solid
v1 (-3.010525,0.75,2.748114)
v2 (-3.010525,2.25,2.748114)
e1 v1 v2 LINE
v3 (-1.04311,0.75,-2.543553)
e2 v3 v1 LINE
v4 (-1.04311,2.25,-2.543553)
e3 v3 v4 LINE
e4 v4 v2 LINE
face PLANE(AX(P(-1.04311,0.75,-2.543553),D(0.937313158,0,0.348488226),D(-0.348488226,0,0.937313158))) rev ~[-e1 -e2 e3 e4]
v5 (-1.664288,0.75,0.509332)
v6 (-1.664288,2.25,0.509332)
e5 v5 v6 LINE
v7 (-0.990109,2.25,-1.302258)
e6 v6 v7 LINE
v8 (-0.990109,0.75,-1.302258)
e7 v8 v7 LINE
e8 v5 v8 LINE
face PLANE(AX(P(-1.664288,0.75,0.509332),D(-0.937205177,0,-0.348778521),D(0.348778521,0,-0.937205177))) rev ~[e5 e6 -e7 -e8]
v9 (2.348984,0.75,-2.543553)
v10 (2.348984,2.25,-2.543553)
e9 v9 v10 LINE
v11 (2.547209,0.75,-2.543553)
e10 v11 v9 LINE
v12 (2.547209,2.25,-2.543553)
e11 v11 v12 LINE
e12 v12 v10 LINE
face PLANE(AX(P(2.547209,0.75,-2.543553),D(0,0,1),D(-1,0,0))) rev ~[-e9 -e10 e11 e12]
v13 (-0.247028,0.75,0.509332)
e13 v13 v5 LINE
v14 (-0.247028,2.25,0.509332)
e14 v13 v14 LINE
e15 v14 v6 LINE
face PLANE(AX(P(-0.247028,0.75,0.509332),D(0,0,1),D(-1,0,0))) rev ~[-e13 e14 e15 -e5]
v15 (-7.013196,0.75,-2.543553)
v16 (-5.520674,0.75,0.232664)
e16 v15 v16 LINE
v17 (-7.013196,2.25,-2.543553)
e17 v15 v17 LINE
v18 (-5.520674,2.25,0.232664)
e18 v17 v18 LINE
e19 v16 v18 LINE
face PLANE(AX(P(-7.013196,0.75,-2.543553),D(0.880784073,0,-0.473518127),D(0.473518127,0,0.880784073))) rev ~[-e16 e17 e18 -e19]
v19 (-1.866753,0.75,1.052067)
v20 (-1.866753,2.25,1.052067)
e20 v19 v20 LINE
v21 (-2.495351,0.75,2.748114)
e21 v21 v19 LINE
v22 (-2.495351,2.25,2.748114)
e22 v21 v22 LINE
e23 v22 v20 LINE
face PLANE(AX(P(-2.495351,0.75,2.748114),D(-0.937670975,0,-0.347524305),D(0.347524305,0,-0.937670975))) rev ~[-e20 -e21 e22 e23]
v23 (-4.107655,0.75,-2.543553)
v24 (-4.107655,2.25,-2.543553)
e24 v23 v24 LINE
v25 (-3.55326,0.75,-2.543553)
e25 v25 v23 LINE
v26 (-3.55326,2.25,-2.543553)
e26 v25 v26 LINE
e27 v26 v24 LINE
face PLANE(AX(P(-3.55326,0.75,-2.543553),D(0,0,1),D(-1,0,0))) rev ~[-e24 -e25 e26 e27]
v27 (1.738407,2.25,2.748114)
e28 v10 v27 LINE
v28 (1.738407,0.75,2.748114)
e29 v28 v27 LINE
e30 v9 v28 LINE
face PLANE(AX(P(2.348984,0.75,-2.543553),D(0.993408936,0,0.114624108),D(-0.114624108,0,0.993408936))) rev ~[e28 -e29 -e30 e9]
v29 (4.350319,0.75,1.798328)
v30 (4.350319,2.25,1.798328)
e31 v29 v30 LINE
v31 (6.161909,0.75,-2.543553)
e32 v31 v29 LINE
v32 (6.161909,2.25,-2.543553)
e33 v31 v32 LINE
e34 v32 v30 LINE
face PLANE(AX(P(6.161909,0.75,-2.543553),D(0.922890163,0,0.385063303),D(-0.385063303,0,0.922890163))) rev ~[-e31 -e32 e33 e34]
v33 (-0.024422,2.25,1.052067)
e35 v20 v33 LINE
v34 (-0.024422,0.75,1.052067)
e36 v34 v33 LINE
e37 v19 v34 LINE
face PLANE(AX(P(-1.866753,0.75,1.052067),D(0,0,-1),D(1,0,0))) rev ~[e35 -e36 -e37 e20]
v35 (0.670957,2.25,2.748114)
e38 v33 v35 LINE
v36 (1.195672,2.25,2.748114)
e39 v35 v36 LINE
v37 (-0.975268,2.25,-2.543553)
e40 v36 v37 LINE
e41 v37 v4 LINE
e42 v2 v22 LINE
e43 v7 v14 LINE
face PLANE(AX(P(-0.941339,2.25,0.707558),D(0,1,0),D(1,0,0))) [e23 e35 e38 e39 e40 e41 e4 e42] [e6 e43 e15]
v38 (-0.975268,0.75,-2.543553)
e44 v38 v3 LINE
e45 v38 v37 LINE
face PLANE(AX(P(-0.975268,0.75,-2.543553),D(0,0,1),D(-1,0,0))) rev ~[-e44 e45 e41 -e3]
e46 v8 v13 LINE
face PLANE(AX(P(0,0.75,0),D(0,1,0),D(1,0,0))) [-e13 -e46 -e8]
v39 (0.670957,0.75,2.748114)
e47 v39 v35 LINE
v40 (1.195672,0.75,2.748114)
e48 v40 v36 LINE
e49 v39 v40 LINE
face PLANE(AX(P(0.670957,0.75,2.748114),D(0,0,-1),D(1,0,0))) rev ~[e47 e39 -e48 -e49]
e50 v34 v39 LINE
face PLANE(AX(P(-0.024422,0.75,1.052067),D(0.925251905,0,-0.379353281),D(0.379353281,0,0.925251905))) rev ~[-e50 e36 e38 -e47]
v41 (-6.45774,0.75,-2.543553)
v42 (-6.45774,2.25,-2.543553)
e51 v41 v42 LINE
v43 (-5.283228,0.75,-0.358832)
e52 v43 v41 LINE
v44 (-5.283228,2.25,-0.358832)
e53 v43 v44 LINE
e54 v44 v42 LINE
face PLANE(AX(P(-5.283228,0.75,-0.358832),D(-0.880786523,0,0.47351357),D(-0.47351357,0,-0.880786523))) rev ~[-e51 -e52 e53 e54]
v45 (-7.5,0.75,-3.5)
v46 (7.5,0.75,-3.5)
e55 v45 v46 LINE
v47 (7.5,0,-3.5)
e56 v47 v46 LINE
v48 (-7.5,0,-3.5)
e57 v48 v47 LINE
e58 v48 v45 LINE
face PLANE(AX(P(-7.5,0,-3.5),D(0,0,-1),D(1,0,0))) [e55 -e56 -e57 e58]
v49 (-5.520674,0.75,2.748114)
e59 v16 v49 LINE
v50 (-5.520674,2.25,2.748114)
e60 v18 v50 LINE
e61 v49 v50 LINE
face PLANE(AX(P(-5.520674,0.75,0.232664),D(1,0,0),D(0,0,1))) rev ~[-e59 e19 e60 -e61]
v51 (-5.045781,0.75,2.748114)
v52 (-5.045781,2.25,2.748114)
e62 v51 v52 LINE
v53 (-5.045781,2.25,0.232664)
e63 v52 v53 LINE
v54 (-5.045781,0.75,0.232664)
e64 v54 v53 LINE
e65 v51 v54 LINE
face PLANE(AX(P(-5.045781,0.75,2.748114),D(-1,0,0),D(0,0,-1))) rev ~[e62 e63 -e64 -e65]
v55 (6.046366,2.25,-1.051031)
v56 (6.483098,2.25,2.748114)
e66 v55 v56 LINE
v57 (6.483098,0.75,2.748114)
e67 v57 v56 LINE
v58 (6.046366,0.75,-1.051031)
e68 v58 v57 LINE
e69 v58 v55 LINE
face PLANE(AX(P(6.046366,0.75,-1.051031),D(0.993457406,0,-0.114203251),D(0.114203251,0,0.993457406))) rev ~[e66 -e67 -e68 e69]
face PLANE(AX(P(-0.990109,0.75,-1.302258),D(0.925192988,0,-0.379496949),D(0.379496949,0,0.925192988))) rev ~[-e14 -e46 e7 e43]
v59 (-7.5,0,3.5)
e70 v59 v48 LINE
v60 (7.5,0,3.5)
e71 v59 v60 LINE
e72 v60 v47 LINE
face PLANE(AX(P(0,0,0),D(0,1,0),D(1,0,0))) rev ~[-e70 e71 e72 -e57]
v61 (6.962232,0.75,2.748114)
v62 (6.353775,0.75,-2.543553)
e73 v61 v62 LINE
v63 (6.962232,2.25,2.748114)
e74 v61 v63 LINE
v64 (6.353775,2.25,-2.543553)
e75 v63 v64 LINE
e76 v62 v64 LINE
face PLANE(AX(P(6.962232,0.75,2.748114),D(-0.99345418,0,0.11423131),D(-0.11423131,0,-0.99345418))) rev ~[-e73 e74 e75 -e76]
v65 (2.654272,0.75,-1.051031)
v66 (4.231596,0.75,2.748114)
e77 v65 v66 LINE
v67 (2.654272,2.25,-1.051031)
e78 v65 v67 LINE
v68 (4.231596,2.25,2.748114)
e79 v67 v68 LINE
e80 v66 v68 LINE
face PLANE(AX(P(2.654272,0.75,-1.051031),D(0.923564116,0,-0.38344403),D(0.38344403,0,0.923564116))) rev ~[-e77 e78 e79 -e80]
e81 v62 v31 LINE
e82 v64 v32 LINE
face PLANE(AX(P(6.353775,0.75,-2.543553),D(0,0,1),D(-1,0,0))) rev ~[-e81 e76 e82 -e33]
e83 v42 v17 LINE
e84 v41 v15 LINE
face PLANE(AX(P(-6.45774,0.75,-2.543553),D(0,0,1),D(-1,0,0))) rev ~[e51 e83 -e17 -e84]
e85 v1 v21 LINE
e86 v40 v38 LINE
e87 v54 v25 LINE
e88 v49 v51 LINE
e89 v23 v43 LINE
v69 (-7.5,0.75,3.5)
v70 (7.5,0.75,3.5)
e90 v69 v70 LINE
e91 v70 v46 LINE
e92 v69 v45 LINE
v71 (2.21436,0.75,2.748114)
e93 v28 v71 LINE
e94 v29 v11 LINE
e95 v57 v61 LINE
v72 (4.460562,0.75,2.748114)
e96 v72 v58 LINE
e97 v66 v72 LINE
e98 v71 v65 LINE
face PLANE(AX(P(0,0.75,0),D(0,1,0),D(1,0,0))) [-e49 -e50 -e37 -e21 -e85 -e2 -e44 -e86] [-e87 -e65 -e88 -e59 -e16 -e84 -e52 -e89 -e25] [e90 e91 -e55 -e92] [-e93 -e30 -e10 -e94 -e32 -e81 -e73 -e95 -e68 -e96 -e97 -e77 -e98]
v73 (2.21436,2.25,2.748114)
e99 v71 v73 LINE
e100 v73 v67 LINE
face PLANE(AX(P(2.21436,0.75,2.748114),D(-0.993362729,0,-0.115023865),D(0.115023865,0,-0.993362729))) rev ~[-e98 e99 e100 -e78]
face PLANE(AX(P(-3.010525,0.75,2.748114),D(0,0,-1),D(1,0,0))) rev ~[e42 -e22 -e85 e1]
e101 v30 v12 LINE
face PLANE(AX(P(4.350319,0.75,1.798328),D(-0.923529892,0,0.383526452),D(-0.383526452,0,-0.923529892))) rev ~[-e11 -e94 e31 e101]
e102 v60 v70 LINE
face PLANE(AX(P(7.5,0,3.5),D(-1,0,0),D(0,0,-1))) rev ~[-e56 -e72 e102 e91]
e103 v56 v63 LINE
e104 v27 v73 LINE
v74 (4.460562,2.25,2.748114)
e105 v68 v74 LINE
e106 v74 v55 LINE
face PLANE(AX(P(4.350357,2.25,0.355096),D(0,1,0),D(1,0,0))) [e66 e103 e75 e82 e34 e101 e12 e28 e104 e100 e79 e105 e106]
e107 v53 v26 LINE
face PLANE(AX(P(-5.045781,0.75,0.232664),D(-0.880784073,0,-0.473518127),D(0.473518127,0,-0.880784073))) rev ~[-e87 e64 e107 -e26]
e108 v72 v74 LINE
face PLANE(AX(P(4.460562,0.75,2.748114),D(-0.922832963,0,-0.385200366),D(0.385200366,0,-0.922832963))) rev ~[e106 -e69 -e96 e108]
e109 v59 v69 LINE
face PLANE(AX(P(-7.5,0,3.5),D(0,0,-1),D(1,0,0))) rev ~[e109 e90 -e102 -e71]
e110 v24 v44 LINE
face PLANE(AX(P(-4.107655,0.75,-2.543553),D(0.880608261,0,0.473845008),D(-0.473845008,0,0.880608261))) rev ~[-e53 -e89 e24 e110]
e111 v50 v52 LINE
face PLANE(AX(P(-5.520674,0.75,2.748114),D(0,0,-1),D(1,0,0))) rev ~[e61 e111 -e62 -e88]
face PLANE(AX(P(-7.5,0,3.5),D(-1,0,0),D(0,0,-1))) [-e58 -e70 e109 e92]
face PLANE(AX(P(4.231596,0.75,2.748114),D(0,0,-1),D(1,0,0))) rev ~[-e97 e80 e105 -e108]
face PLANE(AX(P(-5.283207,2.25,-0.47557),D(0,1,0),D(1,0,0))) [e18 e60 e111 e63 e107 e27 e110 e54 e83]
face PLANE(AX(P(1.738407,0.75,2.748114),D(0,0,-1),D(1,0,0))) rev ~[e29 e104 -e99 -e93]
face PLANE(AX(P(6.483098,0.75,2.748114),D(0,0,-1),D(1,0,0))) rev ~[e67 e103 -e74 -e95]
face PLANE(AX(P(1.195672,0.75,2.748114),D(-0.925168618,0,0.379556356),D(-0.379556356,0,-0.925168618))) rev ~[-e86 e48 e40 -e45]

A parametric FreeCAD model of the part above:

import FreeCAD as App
import Part
import Sketcher
from FreeCAD import Vector
Q = App.Units.Quantity


def add_polygon(sketch, points):
    """Adds a closed chain of lines whose ends are joined by coincident constraints."""
    first, n = sketch.GeometryCount, len(points)
    for a, b in zip(points, points[1:] + points[:1]):
        sketch.addGeometry(Part.LineSegment(App.Vector(*a, 0), App.Vector(*b, 0)), False)
    for i in range(n):
        sketch.addConstraint(Sketcher.Constraint("Coincident", first + i, 2, first + (i + 1) % n, 1))

doc = App.newDocument("Part")
body = doc.addObject("PartDesign::Body", "Body")

sketch1 = doc.addObject("Sketcher::SketchObject", "Sketch")
body.addObject(sketch1)
sketch1.AttachmentSupport = (doc.XZ_Plane, [""])
sketch1.MapMode = "FlatFace"
add_polygon(sketch1, [(-8, -4), (-8, 4), (8, 4), (8, -4)])
sketch1.addConstraint(Sketcher.Constraint("Vertical", 0))
sketch1.addConstraint(Sketcher.Constraint("Horizontal", 1))
sketch1.addConstraint(Sketcher.Constraint("Vertical", 2))
sketch1.addConstraint(Sketcher.Constraint("Horizontal", 3))
sketch1.addConstraint(Sketcher.Constraint("Symmetric", 0, 2, 2, 2, -1, 1))
sketch1.addConstraint(Sketcher.Constraint("DistanceX", 1, 1, 1, 2, Q("15 mm")))
sketch1.addConstraint(Sketcher.Constraint("DistanceY", 0, 1, 0, 2, Q("7 mm")))
pad1 = doc.addObject("PartDesign::Pad", "Pad")
body.addObject(pad1)
pad1.Profile = sketch1
pad1.Length = 0.75
pad1.Reversed = True

sketch2 = doc.addObject("Sketcher::SketchObject", "Sketch001")
body.addObject(sketch2)
sketch2.AttachmentSupport = (doc.XZ_Plane, [""])
sketch2.MapMode = "FlatFace"
sketch2.AttachmentOffset = App.Placement(Vector(0, 0, -0.75), App.Rotation())
add_polygon(sketch2, [(6.96, 2.75), (6.35, -2.54), (6.16, -2.54), (4.35, 1.8), (2.55, -2.54), (2.35, -2.54), (1.74, 2.75), (2.21, 2.75), (2.65, -1.05), (4.23, 2.75), (4.46, 2.75), (6.05, -1.05), (6.48, 2.75)])
add_polygon(sketch2, [(-1.04, -2.54), (-3.01, 2.75), (-2.5, 2.75), (-1.87, 1.05), (-0.02, 1.05), (0.67, 2.75), (1.2, 2.75), (-0.98, -2.54)])
add_polygon(sketch2, [(-1.66, 0.51), (-0.99, -1.3), (-0.25, 0.51)])
add_polygon(sketch2, [(-3.55, -2.54), (-4.11, -2.54), (-5.28, -0.36), (-6.46, -2.54), (-7.01, -2.54), (-5.52, 0.23), (-5.52, 2.75), (-5.05, 2.75), (-5.05, 0.23)])
sketch2.addConstraint(Sketcher.Constraint("Horizontal", 1))
sketch2.addConstraint(Sketcher.Constraint("Horizontal", 4))
sketch2.addConstraint(Sketcher.Constraint("Horizontal", 6))
sketch2.addConstraint(Sketcher.Constraint("Horizontal", 9))
sketch2.addConstraint(Sketcher.Constraint("Horizontal", 12))
sketch2.addConstraint(Sketcher.Constraint("Horizontal", 14))
sketch2.addConstraint(Sketcher.Constraint("Horizontal", 16))
sketch2.addConstraint(Sketcher.Constraint("Horizontal", 18))
sketch2.addConstraint(Sketcher.Constraint("Horizontal", 20))
sketch2.addConstraint(Sketcher.Constraint("Horizontal", 23))
sketch2.addConstraint(Sketcher.Constraint("Horizontal", 24))
sketch2.addConstraint(Sketcher.Constraint("Horizontal", 27))
sketch2.addConstraint(Sketcher.Constraint("Vertical", 29))
sketch2.addConstraint(Sketcher.Constraint("Horizontal", 30))
sketch2.addConstraint(Sketcher.Constraint("Vertical", 31))
sketch2.addConstraint(Sketcher.Constraint("Horizontal", 1, 2, 3, 2))
sketch2.addConstraint(Sketcher.Constraint("Horizontal", 6, 2, 8, 2))
sketch2.addConstraint(Sketcher.Constraint("Horizontal", 7, 2, 10, 2))
sketch2.addConstraint(Sketcher.Constraint("Horizontal", 9, 2, 11, 2))
sketch2.addConstraint(Sketcher.Constraint("Horizontal", 12, 2, 13, 2))
sketch2.addConstraint(Sketcher.Constraint("Horizontal", 14, 2, 17, 2))
sketch2.addConstraint(Sketcher.Constraint("Horizontal", 4, 2, 19, 2))
sketch2.addConstraint(Sketcher.Constraint("Horizontal", 20, 2, 24, 2))
sketch2.addConstraint(Sketcher.Constraint("Horizontal", 24, 2, 26, 2))
sketch2.addConstraint(Sketcher.Constraint("Horizontal", 18, 2, 29, 2))
sketch2.addConstraint(Sketcher.Constraint("Horizontal", 28, 2, 31, 2))
sketch2.addConstraint(Sketcher.Constraint("Equal", 28, 32))
sketch2.addConstraint(Sketcher.Constraint("DistanceX", 20, 2, 21, 2, Q("0.053001 mm")))
sketch2.addConstraint(Sketcher.Constraint("DistanceX", 16, 1, 16, 2, Q("1.842331 mm")))
sketch2.addConstraint(Sketcher.Constraint("DistanceX", 20, 2, 20, 1, Q("0.067842 mm")))
sketch2.addConstraint(Sketcher.Constraint("DistanceX", 23, 2, 23, 1, Q("1.417259 mm")))
sketch2.addConstraint(Sketcher.Constraint("DistanceY", 29, 1, 29, 2, Q("2.51545 mm")))
sketch2.addConstraint(Sketcher.Constraint("DistanceX", -1, 1, 11, 2, Q("6.483098 mm")))
sketch2.addConstraint(Sketcher.Constraint("DistanceX", 3, 2, 1, 2, Q("3.6147 mm")))
sketch2.addConstraint(Sketcher.Constraint("DistanceY", 7, 2, 15, 2, Q("2.103098 mm")))
sketch2.addConstraint(Sketcher.Constraint("DistanceX", 22, 2, 18, 2, Q("1.4427 mm")))
sketch2.addConstraint(Sketcher.Constraint("DistanceY", 25, 2, 15, 2, Q("1.410899 mm")))
sketch2.addConstraint(Sketcher.Constraint("Distance", 7, Q("3.82453 mm")))
sketch2.addConstraint(Sketcher.Constraint("Distance", 8, Q("4.11357 mm")))
sketch2.addConstraint(Sketcher.Constraint("Distance", 10, Q("4.116829 mm")))
sketch2.addConstraint(Sketcher.Constraint("Distance", 13, Q("5.64557 mm")))
sketch2.addConstraint(Sketcher.Constraint("Distance", 19, Q("5.719678 mm")))
sketch2.addConstraint(Sketcher.Constraint("Distance", 21, Q("1.932971 mm")))
sketch2.addConstraint(Sketcher.Constraint("Distance", 26, Q("2.48042 mm")))
sketch2.addConstraint(Sketcher.Constraint("DistanceX", 1, 2, 1, 1, Q("0.191865 mm")))
sketch2.addConstraint(Sketcher.Constraint("DistanceX", 4, 2, 4, 1, Q("0.198225 mm")))
sketch2.addConstraint(Sketcher.Constraint("DistanceX", 6, 1, 6, 2, Q("0.475953 mm")))
sketch2.addConstraint(Sketcher.Constraint("DistanceX", 9, 1, 9, 2, Q("0.228966 mm")))
sketch2.addConstraint(Sketcher.Constraint("DistanceX", 12, 1, 12, 2, Q("0.479133 mm")))
sketch2.addConstraint(Sketcher.Constraint("DistanceX", 14, 1, 14, 2, Q("0.515174 mm")))
sketch2.addConstraint(Sketcher.Constraint("DistanceX", 18, 1, 18, 2, Q("0.524715 mm")))
sketch2.addConstraint(Sketcher.Constraint("DistanceX", 24, 2, 24, 1, Q("0.554395 mm")))
sketch2.addConstraint(Sketcher.Constraint("DistanceX", 27, 2, 27, 1, Q("0.555455 mm")))
sketch2.addConstraint(Sketcher.Constraint("DistanceX", 30, 1, 30, 2, Q("0.474893 mm")))
sketch2.addConstraint(Sketcher.Constraint("DistanceX", -1, 1, 1, 2, Q("6.161909 mm")))
sketch2.addConstraint(Sketcher.Constraint("DistanceX", -1, 1, 2, 2, Q("4.350319 mm")))
sketch2.addConstraint(Sketcher.Constraint("DistanceX", -1, 1, 6, 2, Q("2.21436 mm")))
sketch2.addConstraint(Sketcher.Constraint("DistanceY", 7, 2, -1, 1, Q("1.051031 mm")))
sketch2.addConstraint(Sketcher.Constraint("DistanceX", 14, 2, -1, 1, Q("2.495351 mm")))
sketch2.addConstraint(Sketcher.Constraint("DistanceX", -1, 1, 18, 2, Q("1.195672 mm")))
sketch2.addConstraint(Sketcher.Constraint("DistanceY", 21, 2, -1, 1, Q("1.302258 mm")))
sketch2.addConstraint(Sketcher.Constraint("DistanceX", 26, 2, -1, 1, Q("6.45774 mm")))
sketch2.addConstraint(Sketcher.Constraint("DistanceX", 30, 2, -1, 1, Q("5.045781 mm")))
sketch2.addConstraint(Sketcher.Constraint("DistanceY", 1, 2, 2, 2, Q("4.34188 mm")))
sketch2.addConstraint(Sketcher.Constraint("DistanceY", 3, 2, 7, 2, Q("1.492521 mm")))
sketch2.addConstraint(Sketcher.Constraint("DistanceX", 13, 2, 15, 2, Q("1.143772 mm")))
pad2 = doc.addObject("PartDesign::Pad", "Pad001")
body.addObject(pad2)
pad2.Profile = sketch2
pad2.Length = 1.5
pad2.Reversed = True

doc.recompute()
